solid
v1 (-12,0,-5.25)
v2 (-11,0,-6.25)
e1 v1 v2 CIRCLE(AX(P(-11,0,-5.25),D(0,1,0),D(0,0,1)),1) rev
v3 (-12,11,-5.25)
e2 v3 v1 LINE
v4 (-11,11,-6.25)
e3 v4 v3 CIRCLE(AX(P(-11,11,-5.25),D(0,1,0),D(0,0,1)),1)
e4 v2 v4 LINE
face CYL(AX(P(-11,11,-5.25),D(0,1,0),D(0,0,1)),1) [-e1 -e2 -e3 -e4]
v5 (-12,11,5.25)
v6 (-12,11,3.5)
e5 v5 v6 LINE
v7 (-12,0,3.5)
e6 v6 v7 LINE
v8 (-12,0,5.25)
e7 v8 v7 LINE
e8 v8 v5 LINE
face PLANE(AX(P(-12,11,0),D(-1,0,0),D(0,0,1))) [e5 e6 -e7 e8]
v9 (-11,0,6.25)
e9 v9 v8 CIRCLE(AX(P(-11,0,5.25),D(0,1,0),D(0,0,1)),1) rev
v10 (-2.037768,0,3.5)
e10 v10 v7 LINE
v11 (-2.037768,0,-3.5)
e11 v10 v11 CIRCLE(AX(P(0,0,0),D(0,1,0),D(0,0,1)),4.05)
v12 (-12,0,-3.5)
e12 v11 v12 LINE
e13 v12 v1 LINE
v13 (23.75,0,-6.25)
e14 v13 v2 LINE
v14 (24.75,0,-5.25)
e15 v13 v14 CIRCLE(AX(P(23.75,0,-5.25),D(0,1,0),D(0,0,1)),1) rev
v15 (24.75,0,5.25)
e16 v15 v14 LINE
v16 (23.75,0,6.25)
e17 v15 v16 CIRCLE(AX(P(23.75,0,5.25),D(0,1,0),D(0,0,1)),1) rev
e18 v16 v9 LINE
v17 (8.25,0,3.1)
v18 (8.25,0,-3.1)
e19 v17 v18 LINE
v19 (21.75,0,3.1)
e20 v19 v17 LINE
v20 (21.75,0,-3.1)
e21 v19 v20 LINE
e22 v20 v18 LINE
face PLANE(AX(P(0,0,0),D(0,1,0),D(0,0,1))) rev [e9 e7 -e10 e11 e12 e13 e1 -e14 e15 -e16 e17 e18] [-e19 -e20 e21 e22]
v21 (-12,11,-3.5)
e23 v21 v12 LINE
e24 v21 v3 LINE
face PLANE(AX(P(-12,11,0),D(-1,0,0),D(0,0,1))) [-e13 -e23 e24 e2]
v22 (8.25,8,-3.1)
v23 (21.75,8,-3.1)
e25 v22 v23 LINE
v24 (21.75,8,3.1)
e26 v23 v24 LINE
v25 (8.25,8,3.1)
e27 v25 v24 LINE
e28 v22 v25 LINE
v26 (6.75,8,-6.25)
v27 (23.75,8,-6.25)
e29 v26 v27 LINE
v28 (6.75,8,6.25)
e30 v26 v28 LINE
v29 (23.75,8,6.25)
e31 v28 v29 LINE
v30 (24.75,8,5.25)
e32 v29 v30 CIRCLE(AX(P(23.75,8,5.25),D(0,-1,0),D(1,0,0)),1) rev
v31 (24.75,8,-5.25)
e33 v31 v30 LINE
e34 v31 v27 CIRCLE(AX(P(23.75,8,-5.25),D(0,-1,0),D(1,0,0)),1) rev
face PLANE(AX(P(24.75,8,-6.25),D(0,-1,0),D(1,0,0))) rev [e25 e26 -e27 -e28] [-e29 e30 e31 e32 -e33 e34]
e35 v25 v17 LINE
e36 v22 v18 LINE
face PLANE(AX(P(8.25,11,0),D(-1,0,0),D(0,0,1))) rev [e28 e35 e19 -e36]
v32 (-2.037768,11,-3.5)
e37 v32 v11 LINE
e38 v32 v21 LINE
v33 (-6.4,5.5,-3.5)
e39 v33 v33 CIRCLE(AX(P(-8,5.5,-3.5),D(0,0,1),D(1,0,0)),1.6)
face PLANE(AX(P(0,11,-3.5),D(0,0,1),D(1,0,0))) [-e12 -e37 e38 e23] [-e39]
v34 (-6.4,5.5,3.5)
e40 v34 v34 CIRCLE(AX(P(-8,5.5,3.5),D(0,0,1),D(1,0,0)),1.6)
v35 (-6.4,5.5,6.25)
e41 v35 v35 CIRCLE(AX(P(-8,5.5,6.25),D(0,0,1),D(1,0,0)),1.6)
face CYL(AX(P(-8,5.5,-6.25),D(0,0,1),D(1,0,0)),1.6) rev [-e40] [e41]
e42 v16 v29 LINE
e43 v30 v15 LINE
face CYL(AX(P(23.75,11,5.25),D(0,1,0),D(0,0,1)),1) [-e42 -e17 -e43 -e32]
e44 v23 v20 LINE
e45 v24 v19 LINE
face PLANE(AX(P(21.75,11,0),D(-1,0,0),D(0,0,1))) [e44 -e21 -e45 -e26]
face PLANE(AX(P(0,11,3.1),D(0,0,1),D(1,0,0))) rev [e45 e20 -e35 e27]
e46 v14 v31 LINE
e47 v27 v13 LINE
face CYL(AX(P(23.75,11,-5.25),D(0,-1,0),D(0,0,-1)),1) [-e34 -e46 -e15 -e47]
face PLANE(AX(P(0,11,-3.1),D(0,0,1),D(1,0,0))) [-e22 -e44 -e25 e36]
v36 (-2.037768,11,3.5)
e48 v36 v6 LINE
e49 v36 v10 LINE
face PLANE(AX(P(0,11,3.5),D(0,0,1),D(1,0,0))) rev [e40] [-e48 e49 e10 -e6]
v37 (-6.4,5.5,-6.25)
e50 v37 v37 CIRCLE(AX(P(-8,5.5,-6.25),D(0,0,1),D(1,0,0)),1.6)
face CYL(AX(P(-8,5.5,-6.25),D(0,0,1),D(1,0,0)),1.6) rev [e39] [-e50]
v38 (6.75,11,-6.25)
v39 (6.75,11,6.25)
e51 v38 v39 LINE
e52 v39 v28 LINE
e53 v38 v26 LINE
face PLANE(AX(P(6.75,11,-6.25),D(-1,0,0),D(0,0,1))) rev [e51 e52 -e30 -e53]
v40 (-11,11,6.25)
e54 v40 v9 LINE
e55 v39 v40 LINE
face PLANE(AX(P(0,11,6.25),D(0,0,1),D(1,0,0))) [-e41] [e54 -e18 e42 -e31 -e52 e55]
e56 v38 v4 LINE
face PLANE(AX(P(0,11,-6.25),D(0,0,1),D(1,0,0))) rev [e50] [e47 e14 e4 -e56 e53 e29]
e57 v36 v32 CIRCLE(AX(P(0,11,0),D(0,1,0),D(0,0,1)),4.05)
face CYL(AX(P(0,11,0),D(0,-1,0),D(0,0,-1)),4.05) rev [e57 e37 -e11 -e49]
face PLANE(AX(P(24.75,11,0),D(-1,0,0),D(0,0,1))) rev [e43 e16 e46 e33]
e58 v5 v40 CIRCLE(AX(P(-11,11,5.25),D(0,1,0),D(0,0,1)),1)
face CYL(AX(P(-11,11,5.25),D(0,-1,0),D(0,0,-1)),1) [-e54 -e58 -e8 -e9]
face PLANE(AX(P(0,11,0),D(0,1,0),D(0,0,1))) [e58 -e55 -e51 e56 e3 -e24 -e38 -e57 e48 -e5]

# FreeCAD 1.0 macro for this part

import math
import FreeCAD as App
import Part
import Sketcher
Q = App.Units.Quantity


def edges_at(feature, points):
    """Names of the edges that pass closest to the given points."""
    edges = feature.Shape.Edges
    near = lambda p: min(range(len(edges)), key=lambda i: edges[i].distToShape(Part.Vertex(*p))[0])
    return sorted({f"Edge{near(p) + 1}" for p in points})


def add_polygon(sketch, points):
    """Adds a closed chain of lines whose ends are joined by coincident constraints."""
    first, n = sketch.GeometryCount, len(points)
    for a, b in zip(points, points[1:] + points[:1]):
        sketch.addGeometry(Part.LineSegment(App.Vector(*a, 0), App.Vector(*b, 0)), False)
    for i in range(n):
        sketch.addConstraint(Sketcher.Constraint("Coincident", first + i, 2, first + (i + 1) % n, 1))

doc = App.newDocument("Part")
params = doc.addObject("Spreadsheet::Sheet", "Params")
for row, (alias, value) in enumerate([
    ("sketch1_radius", "4.05 mm"),
    ("sketch1_width", "13.5 mm"),
    ("sketch1_height", "12.5 mm"),
    ("sketch1_height2", "6.2 mm"),
    ("sketch1_width2", "36.75 mm"),
    ("pad1_length", "11 mm"),
    ("sketch2_diameter", "3.2 mm"),
    ("fillet_radius", "1 mm"),
    ("sketch3_width", "18 mm"),
    ("sketch3_height", "3 mm"),
], start=1):
    params.set(f"A{row}", alias)
    params.set(f"B{row}", "=" + value)
    params.setAlias(f"B{row}", alias)

body = doc.addObject("PartDesign::Body", "Body")

# Sketch on XZ plane
sketch1 = body.newObject("Sketcher::SketchObject", "Sketch")
sketch1.AttachmentSupport = (doc.getObject("XZ_Plane"), [""])
sketch1.MapMode = "FlatFace"
sketch1.addGeometry(Part.LineSegment(App.Vector(-12, 6.2, 0), App.Vector(24.8, 6.2, 0)), False)  # 0
sketch1.addGeometry(Part.LineSegment(App.Vector(24.8, 6.2, 0), App.Vector(24.8, -6.2, 0)), False)  # 1
sketch1.addGeometry(Part.LineSegment(App.Vector(24.8, -6.2, 0), App.Vector(-12, -6.2, 0)), False)  # 2
sketch1.addGeometry(Part.LineSegment(App.Vector(-12, -6.2, 0), App.Vector(-12, -3.5, 0)), False)  # 3
sketch1.addGeometry(Part.LineSegment(App.Vector(-12, -3.5, 0), App.Vector(-2, -3.5, 0)), False)  # 4
sketch1.addGeometry(Part.ArcOfCircle(Part.Circle(App.Vector(0, 0, 0), App.Vector(0, 0, 1), 4), math.radians(-120), math.radians(0)), False)  # 5
sketch1.addGeometry(Part.ArcOfCircle(Part.Circle(App.Vector(0, 0, 0), App.Vector(0, 0, 1), 4), math.radians(0), math.radians(120)), False)  # 6
sketch1.addGeometry(Part.LineSegment(App.Vector(-2, 3.5, 0), App.Vector(-12, 3.5, 0)), False)  # 7
sketch1.addGeometry(Part.LineSegment(App.Vector(-12, 3.5, 0), App.Vector(-12, 6.2, 0)), False)  # 8
add_polygon(sketch1, [(21.8, 3.1), (8.2, 3.1), (8.2, -3.1), (21.8, -3.1)])  # lines 9-12
sketch1.addConstraint([
    Sketcher.Constraint("Coincident", 0, 2, 1, 1),
    Sketcher.Constraint("Coincident", 1, 2, 2, 1),
    Sketcher.Constraint("Coincident", 2, 2, 3, 1),
    Sketcher.Constraint("Coincident", 3, 2, 4, 1),
    Sketcher.Constraint("Coincident", 4, 2, 5, 1),
    Sketcher.Constraint("Tangent", 5, 2, 6, 1),
    Sketcher.Constraint("Coincident", 6, 2, 7, 1),
    Sketcher.Constraint("Coincident", 7, 2, 8, 1),
    Sketcher.Constraint("Coincident", 8, 2, 0, 1),
    Sketcher.Constraint("Horizontal", 0),
    Sketcher.Constraint("Vertical", 1),
    Sketcher.Constraint("Horizontal", 2),
    Sketcher.Constraint("Vertical", 3),
    Sketcher.Constraint("Horizontal", 4),
    Sketcher.Constraint("Horizontal", 7),
    Sketcher.Constraint("Vertical", 8),
    Sketcher.Constraint("Horizontal", 9),
    Sketcher.Constraint("Vertical", 10),
    Sketcher.Constraint("Horizontal", 11),
    Sketcher.Constraint("Vertical", 12),
    Sketcher.Constraint("Coincident", 5, 3, -1, 1),
    Sketcher.Constraint("Equal", 5, 6),
    Sketcher.Constraint("Symmetric", 3, 2, 7, 2, -1),
    Sketcher.Constraint("PointOnObject", 5, 2, -1),
    Sketcher.Constraint("Equal", 3, 8),
    Sketcher.Constraint("Radius", 5, Q("4.05 mm")),
    Sketcher.Constraint("DistanceX", 9, 2, 9, 1, Q("13.5 mm")),
    Sketcher.Constraint("DistanceY", 1, 2, 1, 1, Q("12.5 mm")),
    Sketcher.Constraint("DistanceY", 10, 2, 10, 1, Q("6.2 mm")),
    Sketcher.Constraint("DistanceX", 2, 2, -1, 1, Q("12 mm")),
    Sketcher.Constraint("DistanceY", 4, 2, 6, 2, Q("7 mm")),
    Sketcher.Constraint("DistanceX", 11, 2, 1, 2, Q("3 mm")),
    Sketcher.Constraint("DistanceX", 0, 1, 0, 2, Q("36.75 mm")),
    Sketcher.Constraint("DistanceY", -1, 1, 9, 2, Q("3.1 mm")),
])
sketch1.setExpression("Constraints[29]", "Params.sketch1_radius")
sketch1.setExpression("Constraints[30]", "Params.sketch1_width")
sketch1.setExpression("Constraints[31]", "Params.sketch1_height")
sketch1.setExpression("Constraints[32]", "Params.sketch1_height2")
sketch1.setExpression("Constraints[36]", "Params.sketch1_width2")
pad1 = body.newObject("PartDesign::Pad", "Pad")
pad1.Profile = sketch1
pad1.setExpression("Length", "Params.pad1_length")
pad1.Reversed = True

# Sketch on XY plane
sketch2 = body.newObject("Sketcher::SketchObject", "Sketch001")
sketch2.AttachmentSupport = (doc.getObject("XY_Plane"), [""])
sketch2.MapMode = "FlatFace"
sketch2.AttachmentOffset = App.Placement(App.Vector(0, 0, 6.25), App.Rotation())
sketch2.addGeometry(Part.Circle(App.Vector(-8, 5.5, 0), App.Vector(0, 0, 1), 1.6), False)
sketch2.addConstraint([
    Sketcher.Constraint("Diameter", 0, Q("3.2 mm")),
    Sketcher.Constraint("DistanceX", 0, 3, -1, 1, Q("8 mm")),
    Sketcher.Constraint("DistanceY", -1, 1, 0, 3, Q("5.5 mm")),
])
sketch2.setExpression("Constraints[0]", "Params.sketch2_diameter")
pocket1 = body.newObject("PartDesign::Pocket", "Pocket")
pocket1.Profile = sketch2
pocket1.Type = "ThroughAll"
doc.recompute()

fillet = body.newObject("PartDesign::Fillet", "Fillet")
fillet.Base = (pocket1, edges_at(pocket1, [
    (-12, 5.5, -6.25),
    (24.75, 5.5, -6.25),
    (24.75, 5.5, 6.25),
    (-12, 5.5, 6.25),
]))
fillet.setExpression("Radius", "Params.fillet_radius")

# Sketch on XY plane
sketch3 = body.newObject("Sketcher::SketchObject", "Sketch002")
sketch3.AttachmentSupport = (doc.getObject("XY_Plane"), [""])
sketch3.MapMode = "FlatFace"
sketch3.AttachmentOffset = App.Placement(App.Vector(0, 0, 6.25), App.Rotation())
add_polygon(sketch3, [(6.8, 11), (6.8, 8), (24.8, 8), (24.8, 11)])  # lines 0-3
sketch3.addConstraint([
    Sketcher.Constraint("Vertical", 0),
    Sketcher.Constraint("Horizontal", 1),
    Sketcher.Constraint("Vertical", 2),
    Sketcher.Constraint("Horizontal", 3),
    Sketcher.Constraint("DistanceX", 1, 1, 1, 2, Q("18 mm")),
    Sketcher.Constraint("DistanceY", 0, 2, 0, 1, Q("3 mm")),
    Sketcher.Constraint("DistanceY", -1, 1, 0, 2, Q("8 mm")),
    Sketcher.Constraint("DistanceX", -1, 1, 0, 2, Q("6.75 mm")),
])
sketch3.setExpression("Constraints[8]", "Params.sketch3_width")
sketch3.setExpression("Constraints[9]", "Params.sketch3_height")
pocket2 = body.newObject("PartDesign::Pocket", "Pocket001")
pocket2.Profile = sketch3
pocket2.Type = "ThroughAll"

doc.recompute()
